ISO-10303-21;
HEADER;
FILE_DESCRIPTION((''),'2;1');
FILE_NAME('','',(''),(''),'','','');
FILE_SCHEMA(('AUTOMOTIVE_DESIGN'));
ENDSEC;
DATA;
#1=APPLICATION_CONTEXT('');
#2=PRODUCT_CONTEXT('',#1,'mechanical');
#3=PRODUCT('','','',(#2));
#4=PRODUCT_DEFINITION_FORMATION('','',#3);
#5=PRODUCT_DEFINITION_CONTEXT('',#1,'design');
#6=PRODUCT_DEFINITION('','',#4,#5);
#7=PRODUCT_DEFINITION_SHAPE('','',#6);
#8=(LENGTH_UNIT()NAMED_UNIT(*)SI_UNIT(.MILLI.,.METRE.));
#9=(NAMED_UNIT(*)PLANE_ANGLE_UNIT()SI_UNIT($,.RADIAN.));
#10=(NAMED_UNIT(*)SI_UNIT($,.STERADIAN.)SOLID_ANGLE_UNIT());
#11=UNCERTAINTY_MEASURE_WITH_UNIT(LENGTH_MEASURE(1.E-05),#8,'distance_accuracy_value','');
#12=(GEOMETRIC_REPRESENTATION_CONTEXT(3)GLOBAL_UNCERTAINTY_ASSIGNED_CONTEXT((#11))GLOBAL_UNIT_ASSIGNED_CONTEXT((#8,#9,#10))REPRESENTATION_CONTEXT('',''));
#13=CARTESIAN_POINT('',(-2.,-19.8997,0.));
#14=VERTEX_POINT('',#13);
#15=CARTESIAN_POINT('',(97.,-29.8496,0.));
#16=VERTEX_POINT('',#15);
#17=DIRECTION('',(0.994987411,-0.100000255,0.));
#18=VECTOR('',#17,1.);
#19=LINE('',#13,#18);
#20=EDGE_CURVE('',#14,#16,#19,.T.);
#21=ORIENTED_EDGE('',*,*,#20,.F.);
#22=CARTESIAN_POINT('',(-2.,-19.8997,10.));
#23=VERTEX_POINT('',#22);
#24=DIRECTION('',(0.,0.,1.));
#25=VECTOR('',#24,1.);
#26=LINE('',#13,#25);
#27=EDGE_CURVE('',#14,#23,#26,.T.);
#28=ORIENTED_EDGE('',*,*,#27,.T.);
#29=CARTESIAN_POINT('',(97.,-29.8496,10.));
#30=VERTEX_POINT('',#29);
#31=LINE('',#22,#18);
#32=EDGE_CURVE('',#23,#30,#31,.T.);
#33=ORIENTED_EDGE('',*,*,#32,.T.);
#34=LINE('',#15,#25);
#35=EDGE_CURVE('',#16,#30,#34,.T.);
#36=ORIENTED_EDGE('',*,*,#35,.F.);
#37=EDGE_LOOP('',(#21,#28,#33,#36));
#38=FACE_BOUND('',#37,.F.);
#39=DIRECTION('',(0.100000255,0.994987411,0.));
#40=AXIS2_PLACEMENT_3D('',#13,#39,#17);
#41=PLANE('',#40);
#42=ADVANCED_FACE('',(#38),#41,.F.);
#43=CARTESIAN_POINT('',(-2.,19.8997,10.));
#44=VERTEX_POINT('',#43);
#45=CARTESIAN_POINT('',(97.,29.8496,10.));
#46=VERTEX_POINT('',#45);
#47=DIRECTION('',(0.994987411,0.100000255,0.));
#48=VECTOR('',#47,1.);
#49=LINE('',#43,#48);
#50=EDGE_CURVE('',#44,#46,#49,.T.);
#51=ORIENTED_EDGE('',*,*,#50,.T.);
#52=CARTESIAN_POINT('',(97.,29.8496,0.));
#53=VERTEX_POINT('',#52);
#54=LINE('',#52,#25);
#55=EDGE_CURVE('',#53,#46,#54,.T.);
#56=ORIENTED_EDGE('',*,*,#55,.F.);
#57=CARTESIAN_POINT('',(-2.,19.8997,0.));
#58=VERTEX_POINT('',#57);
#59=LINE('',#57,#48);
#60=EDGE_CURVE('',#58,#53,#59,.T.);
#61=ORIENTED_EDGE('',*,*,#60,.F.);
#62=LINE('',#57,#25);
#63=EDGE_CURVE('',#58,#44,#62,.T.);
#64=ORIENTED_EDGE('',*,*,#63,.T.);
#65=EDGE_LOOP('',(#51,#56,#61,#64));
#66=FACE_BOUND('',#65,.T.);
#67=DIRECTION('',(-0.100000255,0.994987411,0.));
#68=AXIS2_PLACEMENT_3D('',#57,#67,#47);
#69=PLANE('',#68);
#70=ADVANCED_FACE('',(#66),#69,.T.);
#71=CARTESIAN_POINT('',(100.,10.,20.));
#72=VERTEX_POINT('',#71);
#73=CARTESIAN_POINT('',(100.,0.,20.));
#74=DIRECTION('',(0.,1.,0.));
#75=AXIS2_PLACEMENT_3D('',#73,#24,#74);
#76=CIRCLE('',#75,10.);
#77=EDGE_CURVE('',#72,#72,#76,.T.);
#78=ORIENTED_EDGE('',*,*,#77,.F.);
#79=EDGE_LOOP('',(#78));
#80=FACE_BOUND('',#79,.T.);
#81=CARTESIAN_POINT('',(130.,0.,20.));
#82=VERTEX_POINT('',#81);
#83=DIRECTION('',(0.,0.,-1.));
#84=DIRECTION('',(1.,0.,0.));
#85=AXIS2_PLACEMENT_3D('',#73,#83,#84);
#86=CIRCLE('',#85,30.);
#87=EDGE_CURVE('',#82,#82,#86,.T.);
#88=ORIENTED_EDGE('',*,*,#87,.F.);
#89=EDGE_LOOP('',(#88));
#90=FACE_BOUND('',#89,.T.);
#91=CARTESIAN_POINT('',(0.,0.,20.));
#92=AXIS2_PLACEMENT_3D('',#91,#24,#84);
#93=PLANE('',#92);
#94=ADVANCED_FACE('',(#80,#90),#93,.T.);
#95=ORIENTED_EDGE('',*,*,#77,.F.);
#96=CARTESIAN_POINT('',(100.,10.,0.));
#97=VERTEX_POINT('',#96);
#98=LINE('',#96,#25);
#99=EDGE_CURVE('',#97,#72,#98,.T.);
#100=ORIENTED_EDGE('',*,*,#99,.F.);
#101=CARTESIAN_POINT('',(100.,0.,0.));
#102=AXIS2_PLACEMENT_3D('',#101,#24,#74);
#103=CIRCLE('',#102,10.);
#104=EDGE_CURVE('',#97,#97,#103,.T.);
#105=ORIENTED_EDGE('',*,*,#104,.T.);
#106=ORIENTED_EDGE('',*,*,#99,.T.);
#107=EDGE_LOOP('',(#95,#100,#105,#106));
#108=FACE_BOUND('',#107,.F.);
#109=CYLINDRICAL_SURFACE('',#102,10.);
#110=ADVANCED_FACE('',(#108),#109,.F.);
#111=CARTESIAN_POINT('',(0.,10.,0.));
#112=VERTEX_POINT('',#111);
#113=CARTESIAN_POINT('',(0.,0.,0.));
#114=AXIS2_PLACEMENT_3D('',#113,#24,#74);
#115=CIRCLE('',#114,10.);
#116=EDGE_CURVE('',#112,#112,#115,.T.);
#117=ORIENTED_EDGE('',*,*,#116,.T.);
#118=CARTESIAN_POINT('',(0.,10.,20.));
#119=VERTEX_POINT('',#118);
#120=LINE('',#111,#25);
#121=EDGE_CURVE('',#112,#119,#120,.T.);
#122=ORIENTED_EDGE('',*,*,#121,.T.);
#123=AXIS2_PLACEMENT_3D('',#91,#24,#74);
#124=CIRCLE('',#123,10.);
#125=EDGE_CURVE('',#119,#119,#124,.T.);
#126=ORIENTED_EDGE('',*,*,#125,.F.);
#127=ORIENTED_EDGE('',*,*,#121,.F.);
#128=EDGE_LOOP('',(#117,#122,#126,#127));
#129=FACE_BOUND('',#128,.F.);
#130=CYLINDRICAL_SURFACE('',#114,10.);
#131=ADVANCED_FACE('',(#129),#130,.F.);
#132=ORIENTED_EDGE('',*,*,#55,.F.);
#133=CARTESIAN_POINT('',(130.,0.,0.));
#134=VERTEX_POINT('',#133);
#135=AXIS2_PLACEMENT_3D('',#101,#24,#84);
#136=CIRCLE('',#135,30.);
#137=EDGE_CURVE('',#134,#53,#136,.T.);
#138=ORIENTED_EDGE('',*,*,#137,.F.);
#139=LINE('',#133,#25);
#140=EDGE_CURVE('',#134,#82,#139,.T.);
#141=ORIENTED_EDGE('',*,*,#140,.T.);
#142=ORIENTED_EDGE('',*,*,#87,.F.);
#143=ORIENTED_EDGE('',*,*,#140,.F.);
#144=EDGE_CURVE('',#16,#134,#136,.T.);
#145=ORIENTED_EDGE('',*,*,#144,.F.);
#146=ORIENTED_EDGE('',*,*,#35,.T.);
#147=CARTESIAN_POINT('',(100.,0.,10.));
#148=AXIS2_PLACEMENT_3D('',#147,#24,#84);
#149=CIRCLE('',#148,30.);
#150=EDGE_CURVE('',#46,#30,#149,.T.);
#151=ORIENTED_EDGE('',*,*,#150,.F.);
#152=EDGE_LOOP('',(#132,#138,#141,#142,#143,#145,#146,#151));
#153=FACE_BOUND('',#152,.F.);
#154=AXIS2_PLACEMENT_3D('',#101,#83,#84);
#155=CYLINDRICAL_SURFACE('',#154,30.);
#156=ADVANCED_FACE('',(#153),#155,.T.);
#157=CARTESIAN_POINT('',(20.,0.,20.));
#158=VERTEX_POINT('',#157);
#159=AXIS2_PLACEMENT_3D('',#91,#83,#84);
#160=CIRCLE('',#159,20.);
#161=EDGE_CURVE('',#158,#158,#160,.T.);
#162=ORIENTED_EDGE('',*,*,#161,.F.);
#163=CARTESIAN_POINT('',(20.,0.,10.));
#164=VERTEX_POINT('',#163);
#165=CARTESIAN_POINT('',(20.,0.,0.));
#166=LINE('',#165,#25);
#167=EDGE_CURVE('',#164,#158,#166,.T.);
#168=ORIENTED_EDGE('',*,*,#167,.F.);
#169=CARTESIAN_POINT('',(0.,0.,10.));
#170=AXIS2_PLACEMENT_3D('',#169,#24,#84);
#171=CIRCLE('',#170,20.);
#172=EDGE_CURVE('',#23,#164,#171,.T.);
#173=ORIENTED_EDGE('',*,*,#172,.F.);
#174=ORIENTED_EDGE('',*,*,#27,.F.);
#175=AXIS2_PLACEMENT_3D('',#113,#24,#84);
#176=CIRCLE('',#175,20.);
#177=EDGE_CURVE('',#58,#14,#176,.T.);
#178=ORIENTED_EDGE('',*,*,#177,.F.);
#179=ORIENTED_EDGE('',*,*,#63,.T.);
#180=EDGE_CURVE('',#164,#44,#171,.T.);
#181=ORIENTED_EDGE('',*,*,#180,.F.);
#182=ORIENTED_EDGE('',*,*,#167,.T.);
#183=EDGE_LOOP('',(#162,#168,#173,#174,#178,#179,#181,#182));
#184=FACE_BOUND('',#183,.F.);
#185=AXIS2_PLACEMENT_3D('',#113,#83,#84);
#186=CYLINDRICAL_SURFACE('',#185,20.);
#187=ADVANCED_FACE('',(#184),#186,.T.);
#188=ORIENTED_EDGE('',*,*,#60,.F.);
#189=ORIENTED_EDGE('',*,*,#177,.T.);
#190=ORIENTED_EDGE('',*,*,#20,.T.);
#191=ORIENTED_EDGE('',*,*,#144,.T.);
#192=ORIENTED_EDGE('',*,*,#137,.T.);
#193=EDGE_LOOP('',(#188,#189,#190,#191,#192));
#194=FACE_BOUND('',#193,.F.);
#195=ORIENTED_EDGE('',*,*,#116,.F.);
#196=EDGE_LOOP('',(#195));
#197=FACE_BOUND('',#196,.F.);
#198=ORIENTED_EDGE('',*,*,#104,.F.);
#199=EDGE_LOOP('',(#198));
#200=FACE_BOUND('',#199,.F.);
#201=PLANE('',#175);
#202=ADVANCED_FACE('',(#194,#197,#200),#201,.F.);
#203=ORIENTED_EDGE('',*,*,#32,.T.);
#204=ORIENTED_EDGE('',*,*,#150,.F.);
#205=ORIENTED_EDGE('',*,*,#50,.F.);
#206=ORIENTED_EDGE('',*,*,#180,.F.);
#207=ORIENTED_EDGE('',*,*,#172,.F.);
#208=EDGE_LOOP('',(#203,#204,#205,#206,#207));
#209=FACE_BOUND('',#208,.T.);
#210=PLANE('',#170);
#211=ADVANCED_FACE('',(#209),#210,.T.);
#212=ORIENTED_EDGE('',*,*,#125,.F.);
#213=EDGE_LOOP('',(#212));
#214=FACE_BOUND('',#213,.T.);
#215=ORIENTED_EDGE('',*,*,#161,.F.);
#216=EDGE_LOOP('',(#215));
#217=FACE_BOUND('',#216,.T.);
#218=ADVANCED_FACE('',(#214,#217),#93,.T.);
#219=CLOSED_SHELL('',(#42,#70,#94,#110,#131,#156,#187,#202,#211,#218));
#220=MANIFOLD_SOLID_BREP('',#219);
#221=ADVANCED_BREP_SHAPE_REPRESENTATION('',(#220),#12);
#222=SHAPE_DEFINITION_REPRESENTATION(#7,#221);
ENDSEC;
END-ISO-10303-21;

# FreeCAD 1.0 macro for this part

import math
import FreeCAD as App
import Part
import Sketcher
Q = App.Units.Quantity

doc = App.newDocument("Part")
body = doc.addObject("PartDesign::Body", "Body")
body.AllowCompound = True

# Sketch on XY plane
sketch1 = doc.addObject("Sketcher::SketchObject", "Sketch")
body.addObject(sketch1)
sketch1.AttachmentSupport = (doc.XY_Plane, [""])
sketch1.MapMode = "FlatFace"
sketch1.addGeometry(Part.Circle(App.Vector(0, 0, 0), App.Vector(0, 0, 1), 20), False)
sketch1.addGeometry(Part.Circle(App.Vector(100, 0, 0), App.Vector(0, 0, 1), 30), False)
sketch1.addConstraint(Sketcher.Constraint("Coincident", 0, 3, -1, 1))
sketch1.addConstraint(Sketcher.Constraint("PointOnObject", 1, 3, -1))
sketch1.addConstraint(Sketcher.Constraint("Diameter", 0, Q("40 mm")))
sketch1.addConstraint(Sketcher.Constraint("Diameter", 1, Q("60 mm")))
sketch1.addConstraint(Sketcher.Constraint("DistanceX", -1, 1, 1, 3, Q("100 mm")))
pad1 = doc.addObject("PartDesign::Pad", "Pad")
body.addObject(pad1)
pad1.Profile = sketch1
pad1.Length = 20

# Sketch on XY plane
sketch2 = doc.addObject("Sketcher::SketchObject", "Sketch001")
body.addObject(sketch2)
sketch2.AttachmentSupport = (doc.XY_Plane, [""])
sketch2.MapMode = "FlatFace"
sketch2.addGeometry(Part.ArcOfCircle(Part.Circle(App.Vector(0, 0, 0), App.Vector(0, 0, 1), 20), math.radians(-96), math.radians(96)), False)
sketch2.addGeometry(Part.LineSegment(App.Vector(-2, -20, 0), App.Vector(97, -30, 0)), False)
sketch2.addGeometry(Part.ArcOfCircle(Part.Circle(App.Vector(100, 0, 0), App.Vector(0, 0, 1), 30), math.radians(96), math.radians(264)), False)
sketch2.addGeometry(Part.LineSegment(App.Vector(97, 30, 0), App.Vector(-2, 20, 0)), False)
sketch2.addConstraint(Sketcher.Constraint("Tangent", 0, 1, 1, 1))
sketch2.addConstraint(Sketcher.Constraint("Tangent", 1, 2, 2, 2))
sketch2.addConstraint(Sketcher.Constraint("Tangent", 2, 1, 3, 1))
sketch2.addConstraint(Sketcher.Constraint("Tangent", 3, 2, 0, 2))
sketch2.addConstraint(Sketcher.Constraint("Coincident", 0, 3, -1, 1))
sketch2.addConstraint(Sketcher.Constraint("PointOnObject", 2, 3, -1))
sketch2.addConstraint(Sketcher.Constraint("Radius", 0, Q("20 mm")))
sketch2.addConstraint(Sketcher.Constraint("Radius", 2, Q("30 mm")))
sketch2.addConstraint(Sketcher.Constraint("DistanceX", -1, 1, 2, 3, Q("100 mm")))
pad2 = doc.addObject("PartDesign::Pad", "Pad001")
body.addObject(pad2)
pad2.Profile = sketch2
pad2.Length = 10

# Sketch on XY plane
sketch3 = doc.addObject("Sketcher::SketchObject", "Sketch002")
body.addObject(sketch3)
sketch3.AttachmentSupport = (doc.XY_Plane, [""])
sketch3.MapMode = "FlatFace"
sketch3.addGeometry(Part.Circle(App.Vector(100, 0, 0), App.Vector(0, 0, 1), 10), False)
sketch3.addConstraint(Sketcher.Constraint("PointOnObject", 0, 3, -1))
sketch3.addConstraint(Sketcher.Constraint("Diameter", 0, Q("20 mm")))
sketch3.addConstraint(Sketcher.Constraint("DistanceX", -1, 1, 0, 3, Q("100 mm")))
doc.recompute()
hole = doc.addObject("PartDesign::Hole", "Hole")
body.addObject(hole)
hole.Profile = sketch3
hole.ThreadType = "None"
hole.Diameter = 20
hole.DepthType = "Dimension"
hole.Depth = 40
hole.DrillPoint = "Flat"
hole.Reversed = True

# Sketch on XY plane
sketch4 = doc.addObject("Sketcher::SketchObject", "Sketch003")
body.addObject(sketch4)
sketch4.AttachmentSupport = (doc.XY_Plane, [""])
sketch4.MapMode = "FlatFace"
sketch4.addGeometry(Part.Circle(App.Vector(0, 0, 0), App.Vector(0, 0, 1), 10), False)
sketch4.addConstraint(Sketcher.Constraint("Coincident", 0, 3, -1, 1))
sketch4.addConstraint(Sketcher.Constraint("Diameter", 0, Q("20 mm")))
doc.recompute()
hole2 = doc.addObject("PartDesign::Hole", "Hole001")
body.addObject(hole2)
hole2.Profile = sketch4
hole2.ThreadType = "None"
hole2.Diameter = 20
hole2.DepthType = "ThroughAll"
hole2.Reversed = True

doc.recompute()
